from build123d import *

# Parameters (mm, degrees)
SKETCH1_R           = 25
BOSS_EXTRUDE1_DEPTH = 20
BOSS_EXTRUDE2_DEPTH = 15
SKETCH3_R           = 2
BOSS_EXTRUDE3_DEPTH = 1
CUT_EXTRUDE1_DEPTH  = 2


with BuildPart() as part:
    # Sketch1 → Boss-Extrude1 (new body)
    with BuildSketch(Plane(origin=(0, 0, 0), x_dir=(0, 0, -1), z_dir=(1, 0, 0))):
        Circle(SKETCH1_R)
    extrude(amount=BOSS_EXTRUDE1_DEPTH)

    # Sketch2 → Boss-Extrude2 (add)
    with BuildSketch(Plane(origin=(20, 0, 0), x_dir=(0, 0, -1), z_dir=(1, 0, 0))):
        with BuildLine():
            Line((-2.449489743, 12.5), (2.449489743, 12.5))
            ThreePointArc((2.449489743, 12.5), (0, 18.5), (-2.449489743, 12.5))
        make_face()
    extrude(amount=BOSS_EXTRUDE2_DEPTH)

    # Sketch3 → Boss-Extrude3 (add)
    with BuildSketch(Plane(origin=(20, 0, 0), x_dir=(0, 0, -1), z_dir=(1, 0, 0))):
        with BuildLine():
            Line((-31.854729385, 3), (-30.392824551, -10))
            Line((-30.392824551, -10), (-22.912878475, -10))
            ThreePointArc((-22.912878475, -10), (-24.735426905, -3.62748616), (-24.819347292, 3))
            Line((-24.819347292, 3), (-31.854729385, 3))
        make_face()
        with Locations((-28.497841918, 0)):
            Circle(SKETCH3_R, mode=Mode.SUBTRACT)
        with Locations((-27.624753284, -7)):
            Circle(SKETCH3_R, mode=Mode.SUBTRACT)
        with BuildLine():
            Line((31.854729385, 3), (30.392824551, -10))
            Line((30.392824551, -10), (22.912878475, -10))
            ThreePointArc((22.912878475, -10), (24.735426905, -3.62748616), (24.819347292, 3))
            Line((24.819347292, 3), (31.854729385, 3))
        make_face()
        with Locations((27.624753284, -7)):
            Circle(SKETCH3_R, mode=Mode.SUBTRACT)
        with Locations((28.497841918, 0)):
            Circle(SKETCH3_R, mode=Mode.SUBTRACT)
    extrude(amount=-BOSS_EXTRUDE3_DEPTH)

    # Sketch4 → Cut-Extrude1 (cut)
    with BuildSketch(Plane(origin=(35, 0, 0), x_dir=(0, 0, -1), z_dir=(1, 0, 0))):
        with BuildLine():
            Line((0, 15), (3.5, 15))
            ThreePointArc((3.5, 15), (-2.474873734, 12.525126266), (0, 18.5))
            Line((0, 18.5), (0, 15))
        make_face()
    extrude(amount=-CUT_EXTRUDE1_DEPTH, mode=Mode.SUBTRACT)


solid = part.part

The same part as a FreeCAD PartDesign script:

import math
import FreeCAD as App
import Part
import Sketcher

V = App.Vector

doc = App.newDocument("Part")
params = doc.addObject("Spreadsheet::Sheet", "Params")
for row, (alias, value) in enumerate([
    ("sketch1_diameter", "50 mm"),
    ("pad1_length", "20 mm"),
    ("sketch2_radius", "3.5 mm"),
    ("pad2_length", "15 mm"),
    ("sketch3_diameter", "4 mm"),
    ("sketch3_radius", "25 mm"),
    ("pad3_length", "1 mm"),
    ("sketch4_radius", "3.5 mm"),
    ("pocket1_length", "2 mm"),
], start=1):
    params.set(f"A{row}", alias)
    params.set(f"B{row}", "=" + value)
    params.setAlias(f"B{row}", alias)

body = doc.addObject("PartDesign::Body", "Body")

# Sketch on YZ plane
sketch1 = body.newObject("Sketcher::SketchObject", "Sketch")
sketch1.AttachmentSupport = (doc.getObject("YZ_Plane"), [""])
sketch1.MapMode = "FlatFace"
sketch1.addGeometry(Part.Circle(V(0, 0, 0), V(0, 0, 1), 25), False)
sketch1.addConstraint([
    Sketcher.Constraint("Coincident", 0, 3, -1, 1),
    Sketcher.Constraint("Diameter", 0, 50.0),
])
sketch1.setExpression("Constraints[1]", "Params.sketch1_diameter")
pad1 = body.newObject("PartDesign::Pad", "Pad")
pad1.Profile = sketch1
pad1.setExpression("Length", "Params.pad1_length")

# Sketch on YZ plane
sketch2 = body.newObject("Sketcher::SketchObject", "Sketch001")
sketch2.AttachmentSupport = (doc.getObject("YZ_Plane"), [""])
sketch2.MapMode = "FlatFace"
sketch2.AttachmentOffset = App.Placement(V(0, 0, 20), App.Rotation())
sketch2.addGeometry([
    Part.LineSegment(V(12.5, 2.44949, 0), V(12.5, -2.44949, 0)),
    Part.ArcOfCircle(Part.Circle(V(15, 0, 0), V(0, 0, 1), 3.5), math.radians(-135.584691), math.radians(135.584691)),
], False)
sketch2.addConstraint([
    Sketcher.Constraint("Coincident", 0, 1, 1, 2),
    Sketcher.Constraint("Coincident", 1, 1, 0, 2),
    Sketcher.Constraint("Vertical", 0),
    Sketcher.Constraint("PointOnObject", 1, 3, -1),
    Sketcher.Constraint("Radius", 1, 3.5),
    Sketcher.Constraint("DistanceX", -1, 1, 1, 3, 15.0),
    Sketcher.Constraint("DistanceX", -1, 1, 0, 1, 12.5),
])
sketch2.setExpression("Constraints[4]", "Params.sketch2_radius")
pad2 = body.newObject("PartDesign::Pad", "Pad001")
pad2.Profile = sketch2
pad2.setExpression("Length", "Params.pad2_length")

# Sketch on YZ plane
sketch3 = body.newObject("Sketcher::SketchObject", "Sketch002")
sketch3.AttachmentSupport = (doc.getObject("YZ_Plane"), [""])
sketch3.MapMode = "FlatFace"
sketch3.AttachmentOffset = App.Placement(V(0, 0, 20), App.Rotation())
sketch3.addGeometry([
    Part.LineSegment(V(3, 31.854729, 0), V(-10, 30.392825, 0)),  # 0
    Part.LineSegment(V(-10, 30.392825, 0), V(-10, 22.912878, 0)),  # 1
    Part.ArcOfCircle(Part.Circle(V(0, 0, 0), V(0, 0, 1), 25), math.radians(83.107897), math.radians(113.578178)),  # 2
    Part.LineSegment(V(3, 24.819347, 0), V(3, 31.854729, 0)),  # 3
    Part.Circle(V(-7, 27.624753, 0), V(0, 0, 1), 2),  # 4
    Part.Circle(V(0, 28.497842, 0), V(0, 0, 1), 2),  # 5
    Part.LineSegment(V(-10, -30.392825, 0), V(3, -31.854729, 0)),  # 6
    Part.LineSegment(V(3, -31.854729, 0), V(3, -24.819347, 0)),  # 7
    Part.ArcOfCircle(Part.Circle(V(0, 0, 0), V(0, 0, 1), 25), math.radians(-113.578178), math.radians(-83.107897)),  # 8
    Part.LineSegment(V(-10, -22.912878, 0), V(-10, -30.392825, 0)),  # 9
    Part.Circle(V(-7, -27.624753, 0), V(0, 0, 1), 2),  # 10
    Part.Circle(V(0, -28.497842, 0), V(0, 0, 1), 2),  # 11
], False)
sketch3.addConstraint([
    Sketcher.Constraint("Coincident", 0, 2, 1, 1),
    Sketcher.Constraint("Coincident", 1, 2, 2, 2),
    Sketcher.Constraint("Coincident", 2, 1, 3, 1),
    Sketcher.Constraint("Coincident", 3, 2, 0, 1),
    Sketcher.Constraint("Coincident", 6, 2, 7, 1),
    Sketcher.Constraint("Coincident", 7, 2, 8, 2),
    Sketcher.Constraint("Coincident", 8, 1, 9, 1),
    Sketcher.Constraint("Coincident", 9, 2, 6, 1),
    Sketcher.Constraint("Vertical", 1),
    Sketcher.Constraint("Vertical", 3),
    Sketcher.Constraint("Vertical", 7),
    Sketcher.Constraint("Vertical", 9),
    Sketcher.Constraint("Coincident", 2, 3, -1, 1),
    Sketcher.Constraint("Coincident", 8, 3, -1, 1),
    Sketcher.Constraint("Equal", 4, 5),
    Sketcher.Constraint("Equal", 2, 8),
    Sketcher.Constraint("Equal", 5, 10),
    Sketcher.Constraint("Equal", 10, 11),
    Sketcher.Constraint("Symmetric", 5, 3, 11, 3, -1, 1),
    Sketcher.Constraint("Symmetric", 4, 3, 10, 3, -1),
    Sketcher.Constraint("Symmetric", 3, 2, 6, 2, -1),
    Sketcher.Constraint("Symmetric", 0, 2, 9, 2, -1),
    Sketcher.Constraint("PointOnObject", 5, 3, -2),
    Sketcher.Constraint("Diameter", 4, 4.0),
    Sketcher.Constraint("Radius", 2, 25.0),
    Sketcher.Constraint("DistanceX", 4, 3, -1, 1, 7.0),
    Sketcher.Constraint("DistanceX", 0, 2, -1, 1, 10.0),
    Sketcher.Constraint("DistanceX", -1, 1, 2, 1, 3.0),
    Sketcher.Constraint("Distance", 0, 13.08194),
    Sketcher.Constraint("DistanceY", 1, 2, 1, 1, 7.479946),
    Sketcher.Constraint("DistanceY", -1, 1, 5, 3, 28.497842),
    Sketcher.Constraint("DistanceY", 4, 3, 5, 3, 0.873089),
])
sketch3.setExpression("Constraints[23]", "Params.sketch3_diameter")
sketch3.setExpression("Constraints[24]", "Params.sketch3_radius")
pad3 = body.newObject("PartDesign::Pad", "Pad002")
pad3.Profile = sketch3
pad3.setExpression("Length", "Params.pad3_length")
pad3.Reversed = True

# Sketch on YZ plane
sketch4 = body.newObject("Sketcher::SketchObject", "Sketch003")
sketch4.AttachmentSupport = (doc.getObject("YZ_Plane"), [""])
sketch4.MapMode = "FlatFace"
sketch4.AttachmentOffset = App.Placement(V(0, 0, 35), App.Rotation())
sketch4.addGeometry([
    Part.LineSegment(V(15, -3.5, 0), V(15, 0, 0)),
    Part.LineSegment(V(15, 0, 0), V(18.5, 0, 0)),
    Part.ArcOfCircle(Part.Circle(V(15, 0, 0), V(0, 0, 1), 3.5), math.radians(0), math.radians(270)),
], False)
sketch4.addConstraint([
    Sketcher.Constraint("Coincident", 0, 2, 1, 1),
    Sketcher.Constraint("Coincident", 1, 2, 2, 1),
    Sketcher.Constraint("Coincident", 2, 2, 0, 1),
    Sketcher.Constraint("Vertical", 0),
    Sketcher.Constraint("Horizontal", 1),
    Sketcher.Constraint("Coincident", 0, 2, 2, 3),
    Sketcher.Constraint("PointOnObject", 2, 3, -1),
    Sketcher.Constraint("Radius", 2, 3.5),
    Sketcher.Constraint("DistanceX", -1, 1, 2, 3, 15.0),
])
sketch4.setExpression("Constraints[7]", "Params.sketch4_radius")
pocket1 = body.newObject("PartDesign::Pocket", "Pocket")
pocket1.Profile = sketch4
pocket1.setExpression("Length", "Params.pocket1_length")

doc.recompute()
